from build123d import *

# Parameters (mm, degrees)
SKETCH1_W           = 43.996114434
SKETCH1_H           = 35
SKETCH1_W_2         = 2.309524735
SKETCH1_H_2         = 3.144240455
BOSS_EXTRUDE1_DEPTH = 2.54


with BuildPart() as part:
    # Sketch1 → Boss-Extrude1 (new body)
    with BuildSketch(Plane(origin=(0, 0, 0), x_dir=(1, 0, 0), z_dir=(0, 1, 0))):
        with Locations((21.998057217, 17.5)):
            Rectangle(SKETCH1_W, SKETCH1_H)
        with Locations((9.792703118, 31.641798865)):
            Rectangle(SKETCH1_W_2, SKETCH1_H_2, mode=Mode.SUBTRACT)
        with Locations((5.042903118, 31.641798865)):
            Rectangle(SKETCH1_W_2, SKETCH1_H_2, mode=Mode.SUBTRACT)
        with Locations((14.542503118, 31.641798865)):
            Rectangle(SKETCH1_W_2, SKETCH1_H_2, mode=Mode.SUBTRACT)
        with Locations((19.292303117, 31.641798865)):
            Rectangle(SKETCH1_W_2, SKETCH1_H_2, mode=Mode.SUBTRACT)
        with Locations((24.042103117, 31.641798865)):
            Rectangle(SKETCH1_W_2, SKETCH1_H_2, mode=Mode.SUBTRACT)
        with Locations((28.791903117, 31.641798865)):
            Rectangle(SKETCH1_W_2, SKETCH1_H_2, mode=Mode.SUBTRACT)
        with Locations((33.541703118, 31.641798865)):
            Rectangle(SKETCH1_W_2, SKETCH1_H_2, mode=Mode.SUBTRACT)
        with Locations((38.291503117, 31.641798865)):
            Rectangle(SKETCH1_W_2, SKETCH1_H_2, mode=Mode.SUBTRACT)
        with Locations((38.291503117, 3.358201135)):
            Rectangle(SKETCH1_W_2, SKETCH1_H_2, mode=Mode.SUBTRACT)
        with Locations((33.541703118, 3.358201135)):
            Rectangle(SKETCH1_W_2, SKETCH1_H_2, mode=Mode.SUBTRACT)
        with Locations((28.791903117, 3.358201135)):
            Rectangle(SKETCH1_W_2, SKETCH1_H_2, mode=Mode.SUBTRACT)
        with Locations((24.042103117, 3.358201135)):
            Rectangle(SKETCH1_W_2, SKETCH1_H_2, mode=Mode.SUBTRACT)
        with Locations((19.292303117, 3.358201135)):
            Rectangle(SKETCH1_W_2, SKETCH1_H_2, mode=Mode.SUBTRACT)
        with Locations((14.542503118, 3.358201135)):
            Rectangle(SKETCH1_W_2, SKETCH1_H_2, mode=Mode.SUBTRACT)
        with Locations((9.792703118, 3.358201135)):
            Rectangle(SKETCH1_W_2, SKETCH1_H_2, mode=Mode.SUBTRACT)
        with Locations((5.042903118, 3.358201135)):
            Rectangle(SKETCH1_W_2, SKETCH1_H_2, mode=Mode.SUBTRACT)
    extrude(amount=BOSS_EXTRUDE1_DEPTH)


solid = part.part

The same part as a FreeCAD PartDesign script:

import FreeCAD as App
import Part
import Sketcher

V = App.Vector

doc = App.newDocument("Part")
body = doc.addObject("PartDesign::Body", "Body")

sketch1 = body.newObject("Sketcher::SketchObject", "Sketch")
sketch1.AttachmentSupport = (doc.getObject("XZ_Plane"), [""])
sketch1.MapMode = "FlatFace"
sketch1.addGeometry(Part.LineSegment(V(0, -35, 0), V(0, 0, 0)), False)
sketch1.addGeometry(Part.LineSegment(V(0, 0, 0), V(43.996114, 0, 0)), False)
sketch1.addGeometry(Part.LineSegment(V(43.996114, 0, 0), V(43.996114, -35, 0)), False)
sketch1.addGeometry(Part.LineSegment(V(43.996114, -35, 0), V(0, -35, 0)), False)
sketch1.addGeometry(Part.LineSegment(V(6.197665, -1.786081, 0), V(3.888141, -1.786081, 0)), False)
sketch1.addGeometry(Part.LineSegment(V(3.888141, -1.786081, 0), V(3.888141, -4.930321, 0)), False)
sketch1.addGeometry(Part.LineSegment(V(3.888141, -4.930321, 0), V(6.197665, -4.930321, 0)), False)
sketch1.addGeometry(Part.LineSegment(V(6.197665, -4.930321, 0), V(6.197665, -1.786081, 0)), False)
sketch1.addGeometry(Part.LineSegment(V(10.947465, -1.786081, 0), V(8.637941, -1.786081, 0)), False)
sketch1.addGeometry(Part.LineSegment(V(8.637941, -1.786081, 0), V(8.637941, -4.930321, 0)), False)
sketch1.addGeometry(Part.LineSegment(V(8.637941, -4.930321, 0), V(10.947465, -4.930321, 0)), False)
sketch1.addGeometry(Part.LineSegment(V(10.947465, -4.930321, 0), V(10.947465, -1.786081, 0)), False)
sketch1.addGeometry(Part.LineSegment(V(15.697265, -1.786081, 0), V(13.387741, -1.786081, 0)), False)
sketch1.addGeometry(Part.LineSegment(V(13.387741, -1.786081, 0), V(13.387741, -4.930321, 0)), False)
sketch1.addGeometry(Part.LineSegment(V(13.387741, -4.930321, 0), V(15.697265, -4.930321, 0)), False)
sketch1.addGeometry(Part.LineSegment(V(15.697265, -4.930321, 0), V(15.697265, -1.786081, 0)), False)
sketch1.addGeometry(Part.LineSegment(V(20.447065, -1.786081, 0), V(18.137541, -1.786081, 0)), False)
sketch1.addGeometry(Part.LineSegment(V(18.137541, -1.786081, 0), V(18.137541, -4.930321, 0)), False)
sketch1.addGeometry(Part.LineSegment(V(18.137541, -4.930321, 0), V(20.447065, -4.930321, 0)), False)
sketch1.addGeometry(Part.LineSegment(V(20.447065, -4.930321, 0), V(20.447065, -1.786081, 0)), False)
sketch1.addGeometry(Part.LineSegment(V(25.196865, -1.786081, 0), V(22.887341, -1.786081, 0)), False)
sketch1.addGeometry(Part.LineSegment(V(22.887341, -1.786081, 0), V(22.887341, -4.930321, 0)), False)
sketch1.addGeometry(Part.LineSegment(V(22.887341, -4.930321, 0), V(25.196865, -4.930321, 0)), False)
sketch1.addGeometry(Part.LineSegment(V(25.196865, -4.930321, 0), V(25.196865, -1.786081, 0)), False)
sketch1.addGeometry(Part.LineSegment(V(29.946665, -1.786081, 0), V(27.637141, -1.786081, 0)), False)
sketch1.addGeometry(Part.LineSegment(V(27.637141, -1.786081, 0), V(27.637141, -4.930321, 0)), False)
sketch1.addGeometry(Part.LineSegment(V(27.637141, -4.930321, 0), V(29.946665, -4.930321, 0)), False)
sketch1.addGeometry(Part.LineSegment(V(29.946665, -4.930321, 0), V(29.946665, -1.786081, 0)), False)
sketch1.addGeometry(Part.LineSegment(V(34.696465, -1.786081, 0), V(32.386941, -1.786081, 0)), False)
sketch1.addGeometry(Part.LineSegment(V(32.386941, -1.786081, 0), V(32.386941, -4.930321, 0)), False)
sketch1.addGeometry(Part.LineSegment(V(32.386941, -4.930321, 0), V(34.696465, -4.930321, 0)), False)
sketch1.addGeometry(Part.LineSegment(V(34.696465, -4.930321, 0), V(34.696465, -1.786081, 0)), False)
sketch1.addGeometry(Part.LineSegment(V(39.446265, -1.786081, 0), V(37.136741, -1.786081, 0)), False)
sketch1.addGeometry(Part.LineSegment(V(37.136741, -1.786081, 0), V(37.136741, -4.930321, 0)), False)
sketch1.addGeometry(Part.LineSegment(V(37.136741, -4.930321, 0), V(39.446265, -4.930321, 0)), False)
sketch1.addGeometry(Part.LineSegment(V(39.446265, -4.930321, 0), V(39.446265, -1.786081, 0)), False)
sketch1.addGeometry(Part.LineSegment(V(6.197665, -30.069679, 0), V(3.888141, -30.069679, 0)), False)
sketch1.addGeometry(Part.LineSegment(V(3.888141, -30.069679, 0), V(3.888141, -33.213919, 0)), False)
sketch1.addGeometry(Part.LineSegment(V(3.888141, -33.213919, 0), V(6.197665, -33.213919, 0)), False)
sketch1.addGeometry(Part.LineSegment(V(6.197665, -33.213919, 0), V(6.197665, -30.069679, 0)), False)
sketch1.addGeometry(Part.LineSegment(V(10.947465, -30.069679, 0), V(8.637941, -30.069679, 0)), False)
sketch1.addGeometry(Part.LineSegment(V(8.637941, -30.069679, 0), V(8.637941, -33.213919, 0)), False)
sketch1.addGeometry(Part.LineSegment(V(8.637941, -33.213919, 0), V(10.947465, -33.213919, 0)), False)
sketch1.addGeometry(Part.LineSegment(V(10.947465, -33.213919, 0), V(10.947465, -30.069679, 0)), False)
sketch1.addGeometry(Part.LineSegment(V(15.697265, -30.069679, 0), V(13.387741, -30.069679, 0)), False)
sketch1.addGeometry(Part.LineSegment(V(13.387741, -30.069679, 0), V(13.387741, -33.213919, 0)), False)
sketch1.addGeometry(Part.LineSegment(V(13.387741, -33.213919, 0), V(15.697265, -33.213919, 0)), False)
sketch1.addGeometry(Part.LineSegment(V(15.697265, -33.213919, 0), V(15.697265, -30.069679, 0)), False)
sketch1.addGeometry(Part.LineSegment(V(20.447065, -30.069679, 0), V(18.137541, -30.069679, 0)), False)
sketch1.addGeometry(Part.LineSegment(V(18.137541, -30.069679, 0), V(18.137541, -33.213919, 0)), False)
sketch1.addGeometry(Part.LineSegment(V(18.137541, -33.213919, 0), V(20.447065, -33.213919, 0)), False)
sketch1.addGeometry(Part.LineSegment(V(20.447065, -33.213919, 0), V(20.447065, -30.069679, 0)), False)
sketch1.addGeometry(Part.LineSegment(V(25.196865, -30.069679, 0), V(22.887341, -30.069679, 0)), False)
sketch1.addGeometry(Part.LineSegment(V(22.887341, -30.069679, 0), V(22.887341, -33.213919, 0)), False)
sketch1.addGeometry(Part.LineSegment(V(22.887341, -33.213919, 0), V(25.196865, -33.213919, 0)), False)
sketch1.addGeometry(Part.LineSegment(V(25.196865, -33.213919, 0), V(25.196865, -30.069679, 0)), False)
sketch1.addGeometry(Part.LineSegment(V(29.946665, -30.069679, 0), V(27.637141, -30.069679, 0)), False)
sketch1.addGeometry(Part.LineSegment(V(27.637141, -30.069679, 0), V(27.637141, -33.213919, 0)), False)
sketch1.addGeometry(Part.LineSegment(V(27.637141, -33.213919, 0), V(29.946665, -33.213919, 0)), False)
sketch1.addGeometry(Part.LineSegment(V(29.946665, -33.213919, 0), V(29.946665, -30.069679, 0)), False)
sketch1.addGeometry(Part.LineSegment(V(34.696465, -30.069679, 0), V(32.386941, -30.069679, 0)), False)
sketch1.addGeometry(Part.LineSegment(V(32.386941, -30.069679, 0), V(32.386941, -33.213919, 0)), False)
sketch1.addGeometry(Part.LineSegment(V(32.386941, -33.213919, 0), V(34.696465, -33.213919, 0)), False)
sketch1.addGeometry(Part.LineSegment(V(34.696465, -33.213919, 0), V(34.696465, -30.069679, 0)), False)
sketch1.addGeometry(Part.LineSegment(V(39.446265, -30.069679, 0), V(37.136741, -30.069679, 0)), False)
sketch1.addGeometry(Part.LineSegment(V(37.136741, -30.069679, 0), V(37.136741, -33.213919, 0)), False)
sketch1.addGeometry(Part.LineSegment(V(37.136741, -33.213919, 0), V(39.446265, -33.213919, 0)), False)
sketch1.addGeometry(Part.LineSegment(V(39.446265, -33.213919, 0), V(39.446265, -30.069679, 0)), False)
sketch1.addConstraint(Sketcher.Constraint("Coincident", 0, 2, 1, 1))
sketch1.addConstraint(Sketcher.Constraint("Coincident", 1, 2, 2, 1))
sketch1.addConstraint(Sketcher.Constraint("Coincident", 2, 2, 3, 1))
sketch1.addConstraint(Sketcher.Constraint("Coincident", 3, 2, 0, 1))
sketch1.addConstraint(Sketcher.Constraint("Coincident", 4, 2, 5, 1))
sketch1.addConstraint(Sketcher.Constraint("Coincident", 5, 2, 6, 1))
sketch1.addConstraint(Sketcher.Constraint("Coincident", 6, 2, 7, 1))
sketch1.addConstraint(Sketcher.Constraint("Coincident", 7, 2, 4, 1))
sketch1.addConstraint(Sketcher.Constraint("Coincident", 8, 2, 9, 1))
sketch1.addConstraint(Sketcher.Constraint("Coincident", 9, 2, 10, 1))
sketch1.addConstraint(Sketcher.Constraint("Coincident", 10, 2, 11, 1))
sketch1.addConstraint(Sketcher.Constraint("Coincident", 11, 2, 8, 1))
sketch1.addConstraint(Sketcher.Constraint("Coincident", 12, 2, 13, 1))
sketch1.addConstraint(Sketcher.Constraint("Coincident", 13, 2, 14, 1))
sketch1.addConstraint(Sketcher.Constraint("Coincident", 14, 2, 15, 1))
sketch1.addConstraint(Sketcher.Constraint("Coincident", 15, 2, 12, 1))
sketch1.addConstraint(Sketcher.Constraint("Coincident", 16, 2, 17, 1))
sketch1.addConstraint(Sketcher.Constraint("Coincident", 17, 2, 18, 1))
sketch1.addConstraint(Sketcher.Constraint("Coincident", 18, 2, 19, 1))
sketch1.addConstraint(Sketcher.Constraint("Coincident", 19, 2, 16, 1))
sketch1.addConstraint(Sketcher.Constraint("Coincident", 20, 2, 21, 1))
sketch1.addConstraint(Sketcher.Constraint("Coincident", 21, 2, 22, 1))
sketch1.addConstraint(Sketcher.Constraint("Coincident", 22, 2, 23, 1))
sketch1.addConstraint(Sketcher.Constraint("Coincident", 23, 2, 20, 1))
sketch1.addConstraint(Sketcher.Constraint("Coincident", 24, 2, 25, 1))
sketch1.addConstraint(Sketcher.Constraint("Coincident", 25, 2, 26, 1))
sketch1.addConstraint(Sketcher.Constraint("Coincident", 26, 2, 27, 1))
sketch1.addConstraint(Sketcher.Constraint("Coincident", 27, 2, 24, 1))
sketch1.addConstraint(Sketcher.Constraint("Coincident", 28, 2, 29, 1))
sketch1.addConstraint(Sketcher.Constraint("Coincident", 29, 2, 30, 1))
sketch1.addConstraint(Sketcher.Constraint("Coincident", 30, 2, 31, 1))
sketch1.addConstraint(Sketcher.Constraint("Coincident", 31, 2, 28, 1))
sketch1.addConstraint(Sketcher.Constraint("Coincident", 32, 2, 33, 1))
sketch1.addConstraint(Sketcher.Constraint("Coincident", 33, 2, 34, 1))
sketch1.addConstraint(Sketcher.Constraint("Coincident", 34, 2, 35, 1))
sketch1.addConstraint(Sketcher.Constraint("Coincident", 35, 2, 32, 1))
sketch1.addConstraint(Sketcher.Constraint("Coincident", 36, 2, 37, 1))
sketch1.addConstraint(Sketcher.Constraint("Coincident", 37, 2, 38, 1))
sketch1.addConstraint(Sketcher.Constraint("Coincident", 38, 2, 39, 1))
sketch1.addConstraint(Sketcher.Constraint("Coincident", 39, 2, 36, 1))
sketch1.addConstraint(Sketcher.Constraint("Coincident", 40, 2, 41, 1))
sketch1.addConstraint(Sketcher.Constraint("Coincident", 41, 2, 42, 1))
sketch1.addConstraint(Sketcher.Constraint("Coincident", 42, 2, 43, 1))
sketch1.addConstraint(Sketcher.Constraint("Coincident", 43, 2, 40, 1))
sketch1.addConstraint(Sketcher.Constraint("Coincident", 44, 2, 45, 1))
sketch1.addConstraint(Sketcher.Constraint("Coincident", 45, 2, 46, 1))
sketch1.addConstraint(Sketcher.Constraint("Coincident", 46, 2, 47, 1))
sketch1.addConstraint(Sketcher.Constraint("Coincident", 47, 2, 44, 1))
sketch1.addConstraint(Sketcher.Constraint("Coincident", 48, 2, 49, 1))
sketch1.addConstraint(Sketcher.Constraint("Coincident", 49, 2, 50, 1))
sketch1.addConstraint(Sketcher.Constraint("Coincident", 50, 2, 51, 1))
sketch1.addConstraint(Sketcher.Constraint("Coincident", 51, 2, 48, 1))
sketch1.addConstraint(Sketcher.Constraint("Coincident", 52, 2, 53, 1))
sketch1.addConstraint(Sketcher.Constraint("Coincident", 53, 2, 54, 1))
sketch1.addConstraint(Sketcher.Constraint("Coincident", 54, 2, 55, 1))
sketch1.addConstraint(Sketcher.Constraint("Coincident", 55, 2, 52, 1))
sketch1.addConstraint(Sketcher.Constraint("Coincident", 56, 2, 57, 1))
sketch1.addConstraint(Sketcher.Constraint("Coincident", 57, 2, 58, 1))
sketch1.addConstraint(Sketcher.Constraint("Coincident", 58, 2, 59, 1))
sketch1.addConstraint(Sketcher.Constraint("Coincident", 59, 2, 56, 1))
sketch1.addConstraint(Sketcher.Constraint("Coincident", 60, 2, 61, 1))
sketch1.addConstraint(Sketcher.Constraint("Coincident", 61, 2, 62, 1))
sketch1.addConstraint(Sketcher.Constraint("Coincident", 62, 2, 63, 1))
sketch1.addConstraint(Sketcher.Constraint("Coincident", 63, 2, 60, 1))
sketch1.addConstraint(Sketcher.Constraint("Coincident", 64, 2, 65, 1))
sketch1.addConstraint(Sketcher.Constraint("Coincident", 65, 2, 66, 1))
sketch1.addConstraint(Sketcher.Constraint("Coincident", 66, 2, 67, 1))
sketch1.addConstraint(Sketcher.Constraint("Coincident", 67, 2, 64, 1))
sketch1.addConstraint(Sketcher.Constraint("Vertical", 0))
sketch1.addConstraint(Sketcher.Constraint("Horizontal", 1))
sketch1.addConstraint(Sketcher.Constraint("Vertical", 2))
sketch1.addConstraint(Sketcher.Constraint("Horizontal", 3))
sketch1.addConstraint(Sketcher.Constraint("Horizontal", 4))
sketch1.addConstraint(Sketcher.Constraint("Vertical", 5))
sketch1.addConstraint(Sketcher.Constraint("Horizontal", 6))
sketch1.addConstraint(Sketcher.Constraint("Vertical", 7))
sketch1.addConstraint(Sketcher.Constraint("Horizontal", 8))
sketch1.addConstraint(Sketcher.Constraint("Vertical", 9))
sketch1.addConstraint(Sketcher.Constraint("Horizontal", 10))
sketch1.addConstraint(Sketcher.Constraint("Vertical", 11))
sketch1.addConstraint(Sketcher.Constraint("Horizontal", 12))
sketch1.addConstraint(Sketcher.Constraint("Vertical", 13))
sketch1.addConstraint(Sketcher.Constraint("Horizontal", 14))
sketch1.addConstraint(Sketcher.Constraint("Vertical", 15))
sketch1.addConstraint(Sketcher.Constraint("Horizontal", 16))
sketch1.addConstraint(Sketcher.Constraint("Vertical", 17))
sketch1.addConstraint(Sketcher.Constraint("Horizontal", 18))
sketch1.addConstraint(Sketcher.Constraint("Vertical", 19))
sketch1.addConstraint(Sketcher.Constraint("Horizontal", 20))
sketch1.addConstraint(Sketcher.Constraint("Vertical", 21))
sketch1.addConstraint(Sketcher.Constraint("Horizontal", 22))
sketch1.addConstraint(Sketcher.Constraint("Vertical", 23))
sketch1.addConstraint(Sketcher.Constraint("Horizontal", 24))
sketch1.addConstraint(Sketcher.Constraint("Vertical", 25))
sketch1.addConstraint(Sketcher.Constraint("Horizontal", 26))
sketch1.addConstraint(Sketcher.Constraint("Vertical", 27))
sketch1.addConstraint(Sketcher.Constraint("Horizontal", 28))
sketch1.addConstraint(Sketcher.Constraint("Vertical", 29))
sketch1.addConstraint(Sketcher.Constraint("Horizontal", 30))
sketch1.addConstraint(Sketcher.Constraint("Vertical", 31))
sketch1.addConstraint(Sketcher.Constraint("Horizontal", 32))
sketch1.addConstraint(Sketcher.Constraint("Vertical", 33))
sketch1.addConstraint(Sketcher.Constraint("Horizontal", 34))
sketch1.addConstraint(Sketcher.Constraint("Vertical", 35))
sketch1.addConstraint(Sketcher.Constraint("Horizontal", 36))
sketch1.addConstraint(Sketcher.Constraint("Vertical", 37))
sketch1.addConstraint(Sketcher.Constraint("Horizontal", 38))
sketch1.addConstraint(Sketcher.Constraint("Vertical", 39))
sketch1.addConstraint(Sketcher.Constraint("Horizontal", 40))
sketch1.addConstraint(Sketcher.Constraint("Vertical", 41))
sketch1.addConstraint(Sketcher.Constraint("Horizontal", 42))
sketch1.addConstraint(Sketcher.Constraint("Vertical", 43))
sketch1.addConstraint(Sketcher.Constraint("Horizontal", 44))
sketch1.addConstraint(Sketcher.Constraint("Vertical", 45))
sketch1.addConstraint(Sketcher.Constraint("Horizontal", 46))
sketch1.addConstraint(Sketcher.Constraint("Vertical", 47))
sketch1.addConstraint(Sketcher.Constraint("Horizontal", 48))
sketch1.addConstraint(Sketcher.Constraint("Vertical", 49))
sketch1.addConstraint(Sketcher.Constraint("Horizontal", 50))
sketch1.addConstraint(Sketcher.Constraint("Vertical", 51))
sketch1.addConstraint(Sketcher.Constraint("Horizontal", 52))
sketch1.addConstraint(Sketcher.Constraint("Vertical", 53))
sketch1.addConstraint(Sketcher.Constraint("Horizontal", 54))
sketch1.addConstraint(Sketcher.Constraint("Vertical", 55))
sketch1.addConstraint(Sketcher.Constraint("Horizontal", 56))
sketch1.addConstraint(Sketcher.Constraint("Vertical", 57))
sketch1.addConstraint(Sketcher.Constraint("Horizontal", 58))
sketch1.addConstraint(Sketcher.Constraint("Vertical", 59))
sketch1.addConstraint(Sketcher.Constraint("Horizontal", 60))
sketch1.addConstraint(Sketcher.Constraint("Vertical", 61))
sketch1.addConstraint(Sketcher.Constraint("Horizontal", 62))
sketch1.addConstraint(Sketcher.Constraint("Vertical", 63))
sketch1.addConstraint(Sketcher.Constraint("Horizontal", 64))
sketch1.addConstraint(Sketcher.Constraint("Vertical", 65))
sketch1.addConstraint(Sketcher.Constraint("Horizontal", 66))
sketch1.addConstraint(Sketcher.Constraint("Vertical", 67))
sketch1.addConstraint(Sketcher.Constraint("Coincident", 0, 2, -1, 1))
sketch1.addConstraint(Sketcher.Constraint("Horizontal", 7, 2, 8, 2))
sketch1.addConstraint(Sketcher.Constraint("Horizontal", 6, 2, 9, 2))
sketch1.addConstraint(Sketcher.Constraint("Horizontal", 11, 2, 12, 2))
sketch1.addConstraint(Sketcher.Constraint("Horizontal", 10, 2, 13, 2))
sketch1.addConstraint(Sketcher.Constraint("Horizontal", 15, 2, 16, 2))
sketch1.addConstraint(Sketcher.Constraint("Horizontal", 14, 2, 17, 2))
sketch1.addConstraint(Sketcher.Constraint("Horizontal", 19, 2, 20, 2))
sketch1.addConstraint(Sketcher.Constraint("Horizontal", 18, 2, 21, 2))
sketch1.addConstraint(Sketcher.Constraint("Horizontal", 23, 2, 24, 2))
sketch1.addConstraint(Sketcher.Constraint("Horizontal", 22, 2, 25, 2))
sketch1.addConstraint(Sketcher.Constraint("Horizontal", 27, 2, 28, 2))
sketch1.addConstraint(Sketcher.Constraint("Horizontal", 26, 2, 29, 2))
sketch1.addConstraint(Sketcher.Constraint("Horizontal", 31, 2, 32, 2))
sketch1.addConstraint(Sketcher.Constraint("Horizontal", 30, 2, 33, 2))
sketch1.addConstraint(Sketcher.Constraint("Horizontal", 39, 2, 40, 2))
sketch1.addConstraint(Sketcher.Constraint("Horizontal", 38, 2, 41, 2))
sketch1.addConstraint(Sketcher.Constraint("Horizontal", 43, 2, 44, 2))
sketch1.addConstraint(Sketcher.Constraint("Horizontal", 42, 2, 45, 2))
sketch1.addConstraint(Sketcher.Constraint("Horizontal", 47, 2, 48, 2))
sketch1.addConstraint(Sketcher.Constraint("Horizontal", 46, 2, 49, 2))
sketch1.addConstraint(Sketcher.Constraint("Horizontal", 51, 2, 52, 2))
sketch1.addConstraint(Sketcher.Constraint("Horizontal", 50, 2, 53, 2))
sketch1.addConstraint(Sketcher.Constraint("Horizontal", 55, 2, 56, 2))
sketch1.addConstraint(Sketcher.Constraint("Horizontal", 54, 2, 57, 2))
sketch1.addConstraint(Sketcher.Constraint("Horizontal", 59, 2, 60, 2))
sketch1.addConstraint(Sketcher.Constraint("Horizontal", 58, 2, 61, 2))
sketch1.addConstraint(Sketcher.Constraint("Horizontal", 63, 2, 64, 2))
sketch1.addConstraint(Sketcher.Constraint("Horizontal", 62, 2, 65, 2))
sketch1.addConstraint(Sketcher.Constraint("Vertical", 5, 2, 36, 2))
sketch1.addConstraint(Sketcher.Constraint("Vertical", 7, 2, 38, 2))
sketch1.addConstraint(Sketcher.Constraint("Vertical", 9, 2, 40, 2))
sketch1.addConstraint(Sketcher.Constraint("Vertical", 11, 2, 42, 2))
sketch1.addConstraint(Sketcher.Constraint("Vertical", 13, 2, 44, 2))
sketch1.addConstraint(Sketcher.Constraint("Vertical", 15, 2, 46, 2))
sketch1.addConstraint(Sketcher.Constraint("Vertical", 17, 2, 48, 2))
sketch1.addConstraint(Sketcher.Constraint("Vertical", 19, 2, 50, 2))
sketch1.addConstraint(Sketcher.Constraint("Vertical", 21, 2, 52, 2))
sketch1.addConstraint(Sketcher.Constraint("Vertical", 23, 2, 54, 2))
sketch1.addConstraint(Sketcher.Constraint("Vertical", 25, 2, 56, 2))
sketch1.addConstraint(Sketcher.Constraint("Vertical", 27, 2, 58, 2))
sketch1.addConstraint(Sketcher.Constraint("Vertical", 29, 2, 60, 2))
sketch1.addConstraint(Sketcher.Constraint("Vertical", 31, 2, 62, 2))
sketch1.addConstraint(Sketcher.Constraint("Vertical", 33, 2, 64, 2))
sketch1.addConstraint(Sketcher.Constraint("Vertical", 35, 2, 66, 2))
sketch1.addConstraint(Sketcher.Constraint("Equal", 6, 8))
sketch1.addConstraint(Sketcher.Constraint("Equal", 10, 12))
sketch1.addConstraint(Sketcher.Constraint("Equal", 14, 16))
sketch1.addConstraint(Sketcher.Constraint("Equal", 18, 20))
sketch1.addConstraint(Sketcher.Constraint("Equal", 22, 24))
sketch1.addConstraint(Sketcher.Constraint("Equal", 26, 28))
sketch1.addConstraint(Sketcher.Constraint("Equal", 30, 32))
sketch1.addConstraint(Sketcher.Constraint("Equal", 35, 37))
sketch1.addConstraint(Sketcher.Constraint("DistanceY", 0, 1, 0, 2, 35.0))
sketch1.addConstraint(Sketcher.Constraint("DistanceY", 5, 2, 5, 1, 3.14424))
sketch1.addConstraint(Sketcher.Constraint("DistanceX", 1, 1, 1, 2, 43.996114))
sketch1.addConstraint(Sketcher.Constraint("DistanceX", 4, 2, 4, 1, 2.309525))
sketch1.addConstraint(Sketcher.Constraint("DistanceX", -1, 1, 4, 2, 3.888141))
sketch1.addConstraint(Sketcher.Constraint("DistanceY", 4, 2, -1, 1, 1.786081))
sketch1.addConstraint(Sketcher.Constraint("DistanceX", -1, 1, 8, 2, 8.637941))
sketch1.addConstraint(Sketcher.Constraint("DistanceX", -1, 1, 12, 2, 13.387741))
sketch1.addConstraint(Sketcher.Constraint("DistanceX", -1, 1, 16, 2, 18.137541))
sketch1.addConstraint(Sketcher.Constraint("DistanceX", -1, 1, 20, 2, 22.887341))
sketch1.addConstraint(Sketcher.Constraint("DistanceX", -1, 1, 24, 2, 27.637141))
sketch1.addConstraint(Sketcher.Constraint("DistanceX", -1, 1, 28, 2, 32.386941))
sketch1.addConstraint(Sketcher.Constraint("DistanceX", -1, 1, 32, 2, 37.136741))
sketch1.addConstraint(Sketcher.Constraint("DistanceY", 36, 2, -1, 1, 30.069679))
pad1 = body.newObject("PartDesign::Pad", "Pad")
pad1.Profile = sketch1
pad1.Length = 2.54
pad1.Reversed = True

doc.recompute()
